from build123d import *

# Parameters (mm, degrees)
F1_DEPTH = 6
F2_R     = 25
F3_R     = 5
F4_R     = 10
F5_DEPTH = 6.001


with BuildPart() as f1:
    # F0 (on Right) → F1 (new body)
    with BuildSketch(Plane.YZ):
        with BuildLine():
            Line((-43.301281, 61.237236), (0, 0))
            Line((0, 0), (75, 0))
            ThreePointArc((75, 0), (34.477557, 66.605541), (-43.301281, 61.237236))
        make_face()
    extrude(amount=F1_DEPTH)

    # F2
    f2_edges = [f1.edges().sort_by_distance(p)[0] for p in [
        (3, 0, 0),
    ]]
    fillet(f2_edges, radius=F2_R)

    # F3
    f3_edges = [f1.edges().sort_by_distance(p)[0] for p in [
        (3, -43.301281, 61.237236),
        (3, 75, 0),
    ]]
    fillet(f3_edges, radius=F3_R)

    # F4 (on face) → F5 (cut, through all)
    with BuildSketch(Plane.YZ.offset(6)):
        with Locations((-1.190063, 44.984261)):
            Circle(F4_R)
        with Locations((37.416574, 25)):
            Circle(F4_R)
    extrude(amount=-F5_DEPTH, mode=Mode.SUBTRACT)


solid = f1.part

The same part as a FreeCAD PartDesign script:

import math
import FreeCAD as App
import Part
import Sketcher
Q = App.Units.Quantity


def edges_at(feature, points):
    """Names of the edges that pass closest to the given points."""
    edges = feature.Shape.Edges
    near = lambda p: min(range(len(edges)), key=lambda i: edges[i].distToShape(Part.Vertex(*p))[0])
    return sorted({f"Edge{near(p) + 1}" for p in points})

doc = App.newDocument("Part")
params = doc.addObject("Spreadsheet::Sheet", "Params")
for row, (alias, value) in enumerate([
    ("sketch1_radius", "75 mm"),
    ("pad1_length", "6 mm"),
    ("fillet_radius", "25 mm"),
    ("fillet2_radius", "5 mm"),
    ("sketch2_diameter", "20 mm"),
], start=1):
    params.set(f"A{row}", alias)
    params.set(f"B{row}", "=" + value)
    params.setAlias(f"B{row}", alias)

body = doc.addObject("PartDesign::Body", "Body")

# Sketch on YZ plane
sketch1 = body.newObject("Sketcher::SketchObject", "Sketch")
sketch1.AttachmentSupport = (doc.getObject("YZ_Plane"), [""])
sketch1.MapMode = "FlatFace"
sketch1.addGeometry([
    Part.LineSegment(App.Vector(-43, 61, 0), App.Vector(0, 0, 0)),
    Part.LineSegment(App.Vector(0, 0, 0), App.Vector(75, 0, 0)),
    Part.ArcOfCircle(Part.Circle(App.Vector(0, 0, 0), App.Vector(0, 0, 1), 75), math.radians(0), math.radians(125)),
], False)
sketch1.addConstraint([
    Sketcher.Constraint("Coincident", 0, 2, 1, 1),
    Sketcher.Constraint("Coincident", 1, 2, 2, 1),
    Sketcher.Constraint("Coincident", 2, 2, 0, 1),
    Sketcher.Constraint("Horizontal", 1),
    Sketcher.Constraint("Coincident", 2, 3, -1, 1),
    Sketcher.Constraint("Coincident", 0, 2, -1, 1),
    Sketcher.Constraint("Radius", 2, Q("75 mm")),
    Sketcher.Constraint("DistanceX", 2, 2, -1, 1, Q("43.301281 mm")),
])
sketch1.setExpression("Constraints[6]", "Params.sketch1_radius")
pad1 = body.newObject("PartDesign::Pad", "Pad")
pad1.Profile = sketch1
pad1.setExpression("Length", "Params.pad1_length")
doc.recompute()

fillet = body.newObject("PartDesign::Fillet", "Fillet")
fillet.Base = (pad1, edges_at(pad1, [(3, 0, 0)]))
fillet.setExpression("Radius", "Params.fillet_radius")
doc.recompute()

fillet2 = body.newObject("PartDesign::Fillet", "Fillet001")
fillet2.Base = (fillet, edges_at(fillet, [(3, -43.301, 61.237), (3, 75, 0)]))
fillet2.setExpression("Radius", "Params.fillet2_radius")

# Sketch on YZ plane
sketch2 = body.newObject("Sketcher::SketchObject", "Sketch001")
sketch2.AttachmentSupport = (doc.getObject("YZ_Plane"), [""])
sketch2.MapMode = "FlatFace"
sketch2.AttachmentOffset = App.Placement(App.Vector(0, 0, 6), App.Rotation())
sketch2.addGeometry([
    Part.Circle(App.Vector(-1, 45, 0), App.Vector(0, 0, 1), 10),
    Part.Circle(App.Vector(37, 25, 0), App.Vector(0, 0, 1), 10),
], False)
sketch2.addConstraint([
    Sketcher.Constraint("Equal", 0, 1),
    Sketcher.Constraint("Diameter", 0, Q("20 mm")),
    Sketcher.Constraint("DistanceY", -1, 1, 1, 3, Q("25 mm")),
    Sketcher.Constraint("DistanceY", -1, 1, 0, 3, Q("44.984261 mm")),
    Sketcher.Constraint("DistanceX", 0, 3, -1, 1, Q("1.190063 mm")),
    Sketcher.Constraint("DistanceX", -1, 1, 1, 3, Q("37.416574 mm")),
])
sketch2.setExpression("Constraints[1]", "Params.sketch2_diameter")
pocket1 = body.newObject("PartDesign::Pocket", "Pocket")
pocket1.Profile = sketch2
pocket1.Type = "ThroughAll"

doc.recompute()
